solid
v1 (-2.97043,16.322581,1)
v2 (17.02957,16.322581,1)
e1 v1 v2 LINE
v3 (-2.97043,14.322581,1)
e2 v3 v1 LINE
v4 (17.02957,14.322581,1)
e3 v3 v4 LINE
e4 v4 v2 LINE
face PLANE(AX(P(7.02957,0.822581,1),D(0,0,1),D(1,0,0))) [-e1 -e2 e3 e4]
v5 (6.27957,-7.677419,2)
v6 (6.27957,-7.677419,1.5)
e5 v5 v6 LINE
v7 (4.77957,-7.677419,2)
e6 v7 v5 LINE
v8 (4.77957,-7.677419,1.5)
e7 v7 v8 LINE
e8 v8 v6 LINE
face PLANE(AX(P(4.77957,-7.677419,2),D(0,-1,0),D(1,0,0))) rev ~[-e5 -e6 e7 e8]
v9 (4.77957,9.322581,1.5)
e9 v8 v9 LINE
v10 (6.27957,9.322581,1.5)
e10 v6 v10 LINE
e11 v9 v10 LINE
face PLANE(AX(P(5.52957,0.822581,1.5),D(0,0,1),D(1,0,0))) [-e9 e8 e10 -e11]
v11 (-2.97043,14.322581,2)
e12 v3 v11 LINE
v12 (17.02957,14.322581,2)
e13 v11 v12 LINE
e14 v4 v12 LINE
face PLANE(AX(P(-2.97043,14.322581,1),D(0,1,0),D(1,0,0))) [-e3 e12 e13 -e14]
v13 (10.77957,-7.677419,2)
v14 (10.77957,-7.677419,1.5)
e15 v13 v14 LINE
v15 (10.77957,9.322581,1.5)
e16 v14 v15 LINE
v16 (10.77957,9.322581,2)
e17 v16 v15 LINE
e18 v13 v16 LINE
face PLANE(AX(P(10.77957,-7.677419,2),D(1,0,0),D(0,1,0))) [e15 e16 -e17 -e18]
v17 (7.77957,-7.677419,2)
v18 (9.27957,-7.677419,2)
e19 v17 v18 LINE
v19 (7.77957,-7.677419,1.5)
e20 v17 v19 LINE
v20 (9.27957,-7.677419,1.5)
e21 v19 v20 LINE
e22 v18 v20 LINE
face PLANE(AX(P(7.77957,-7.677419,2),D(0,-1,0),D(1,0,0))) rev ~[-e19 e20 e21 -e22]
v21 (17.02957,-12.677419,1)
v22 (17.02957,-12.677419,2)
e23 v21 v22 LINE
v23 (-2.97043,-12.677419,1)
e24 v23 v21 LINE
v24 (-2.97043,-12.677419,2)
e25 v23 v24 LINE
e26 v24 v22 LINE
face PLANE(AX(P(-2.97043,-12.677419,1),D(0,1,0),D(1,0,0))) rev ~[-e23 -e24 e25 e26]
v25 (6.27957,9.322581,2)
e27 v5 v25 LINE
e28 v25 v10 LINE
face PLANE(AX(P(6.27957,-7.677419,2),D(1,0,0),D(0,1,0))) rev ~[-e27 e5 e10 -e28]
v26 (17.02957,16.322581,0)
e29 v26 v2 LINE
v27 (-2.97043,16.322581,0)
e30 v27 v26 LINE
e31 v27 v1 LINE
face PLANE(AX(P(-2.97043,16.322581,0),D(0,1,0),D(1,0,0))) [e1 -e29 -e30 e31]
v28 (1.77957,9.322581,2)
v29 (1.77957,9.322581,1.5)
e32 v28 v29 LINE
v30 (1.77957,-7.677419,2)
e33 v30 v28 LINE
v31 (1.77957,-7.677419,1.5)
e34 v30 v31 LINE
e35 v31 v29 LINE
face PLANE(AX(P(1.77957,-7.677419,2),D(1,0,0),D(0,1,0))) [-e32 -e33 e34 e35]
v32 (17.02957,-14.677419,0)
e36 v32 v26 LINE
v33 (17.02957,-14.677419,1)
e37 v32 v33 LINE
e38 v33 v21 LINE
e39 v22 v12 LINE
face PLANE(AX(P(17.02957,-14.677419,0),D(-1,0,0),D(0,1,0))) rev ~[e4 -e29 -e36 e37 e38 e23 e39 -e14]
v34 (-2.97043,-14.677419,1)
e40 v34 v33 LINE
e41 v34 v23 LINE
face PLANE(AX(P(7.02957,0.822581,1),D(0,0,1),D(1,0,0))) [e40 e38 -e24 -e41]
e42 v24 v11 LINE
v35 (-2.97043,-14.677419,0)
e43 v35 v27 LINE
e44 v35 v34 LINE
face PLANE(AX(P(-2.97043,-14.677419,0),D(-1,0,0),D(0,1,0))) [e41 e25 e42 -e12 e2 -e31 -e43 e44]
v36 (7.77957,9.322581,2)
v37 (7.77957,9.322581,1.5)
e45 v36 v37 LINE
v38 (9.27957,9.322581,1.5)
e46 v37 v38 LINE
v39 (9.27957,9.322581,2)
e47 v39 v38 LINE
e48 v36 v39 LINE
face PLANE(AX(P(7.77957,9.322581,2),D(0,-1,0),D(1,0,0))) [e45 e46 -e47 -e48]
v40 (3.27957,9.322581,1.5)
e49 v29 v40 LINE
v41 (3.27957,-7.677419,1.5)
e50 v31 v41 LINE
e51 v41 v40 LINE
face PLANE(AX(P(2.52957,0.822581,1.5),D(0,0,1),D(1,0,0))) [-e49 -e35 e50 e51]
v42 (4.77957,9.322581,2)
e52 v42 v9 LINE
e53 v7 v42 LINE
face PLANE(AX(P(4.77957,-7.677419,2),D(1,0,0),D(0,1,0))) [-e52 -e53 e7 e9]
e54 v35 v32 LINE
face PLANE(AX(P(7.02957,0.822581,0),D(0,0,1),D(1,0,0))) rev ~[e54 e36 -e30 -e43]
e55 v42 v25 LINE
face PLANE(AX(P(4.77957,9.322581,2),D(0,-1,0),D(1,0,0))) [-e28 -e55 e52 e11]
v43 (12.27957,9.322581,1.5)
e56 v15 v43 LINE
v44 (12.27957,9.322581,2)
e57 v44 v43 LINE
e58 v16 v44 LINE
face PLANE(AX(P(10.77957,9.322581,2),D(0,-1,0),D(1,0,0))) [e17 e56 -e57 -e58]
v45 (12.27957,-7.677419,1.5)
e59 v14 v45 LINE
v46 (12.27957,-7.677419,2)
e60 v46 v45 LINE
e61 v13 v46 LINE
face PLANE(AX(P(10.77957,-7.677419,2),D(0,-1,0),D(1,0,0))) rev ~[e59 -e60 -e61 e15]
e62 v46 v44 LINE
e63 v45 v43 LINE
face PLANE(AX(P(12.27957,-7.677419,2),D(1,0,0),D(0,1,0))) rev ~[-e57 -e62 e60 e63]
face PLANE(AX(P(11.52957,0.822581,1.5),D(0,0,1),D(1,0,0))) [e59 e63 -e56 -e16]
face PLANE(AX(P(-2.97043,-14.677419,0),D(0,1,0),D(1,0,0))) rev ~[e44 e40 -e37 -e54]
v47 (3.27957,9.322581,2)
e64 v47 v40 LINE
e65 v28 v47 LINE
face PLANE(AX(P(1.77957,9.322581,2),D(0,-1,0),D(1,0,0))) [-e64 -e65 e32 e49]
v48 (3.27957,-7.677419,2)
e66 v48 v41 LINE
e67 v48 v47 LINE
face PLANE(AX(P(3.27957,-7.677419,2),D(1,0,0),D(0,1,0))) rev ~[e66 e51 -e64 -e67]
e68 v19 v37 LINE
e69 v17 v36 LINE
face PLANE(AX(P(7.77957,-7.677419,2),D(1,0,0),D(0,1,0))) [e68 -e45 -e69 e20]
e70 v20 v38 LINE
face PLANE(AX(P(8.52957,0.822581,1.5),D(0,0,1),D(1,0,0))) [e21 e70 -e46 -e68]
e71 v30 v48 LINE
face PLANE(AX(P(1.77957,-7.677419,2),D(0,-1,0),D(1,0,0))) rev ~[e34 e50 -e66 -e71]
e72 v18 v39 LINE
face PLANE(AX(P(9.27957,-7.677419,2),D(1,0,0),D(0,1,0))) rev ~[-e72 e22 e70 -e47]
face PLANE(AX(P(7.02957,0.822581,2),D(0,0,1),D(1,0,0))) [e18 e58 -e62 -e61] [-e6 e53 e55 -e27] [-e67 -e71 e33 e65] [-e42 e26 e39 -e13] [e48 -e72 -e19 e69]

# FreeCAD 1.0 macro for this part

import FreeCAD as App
import Part
import Sketcher

V = App.Vector


def add_polygon(sketch, points):
    """Adds a closed chain of lines whose ends are joined by coincident constraints."""
    first, n = sketch.GeometryCount, len(points)
    for a, b in zip(points, points[1:] + points[:1]):
        sketch.addGeometry(Part.LineSegment(App.Vector(*a, 0), App.Vector(*b, 0)), False)
    for i in range(n):
        sketch.addConstraint(Sketcher.Constraint("Coincident", first + i, 2, first + (i + 1) % n, 1))

doc = App.newDocument("Part")
body = doc.addObject("PartDesign::Body", "Body")

# Sketch on XY plane
sketch1 = doc.addObject("Sketcher::SketchObject", "Sketch")
body.addObject(sketch1)
sketch1.AttachmentSupport = (doc.XY_Plane, [""])
sketch1.MapMode = "FlatFace"
add_polygon(sketch1, [(-3, 16), (-3, -15), (17, -15), (17, 16)])  # lines 0-3
sketch1.addConstraint(Sketcher.Constraint("Vertical", 0))
sketch1.addConstraint(Sketcher.Constraint("Horizontal", 1))
sketch1.addConstraint(Sketcher.Constraint("Vertical", 2))
sketch1.addConstraint(Sketcher.Constraint("Horizontal", 3))
sketch1.addConstraint(Sketcher.Constraint("DistanceX", 1, 1, 1, 2, 20.0))
sketch1.addConstraint(Sketcher.Constraint("DistanceY", 0, 2, 0, 1, 31.0))
sketch1.addConstraint(Sketcher.Constraint("DistanceX", 0, 2, -1, 1, 2.97043))
sketch1.addConstraint(Sketcher.Constraint("DistanceY", 0, 2, -1, 1, 14.677419))
pad1 = doc.addObject("PartDesign::Pad", "Pad")
body.addObject(pad1)
pad1.Profile = sketch1
pad1.Length = 1

# Sketch on XY plane
sketch2 = doc.addObject("Sketcher::SketchObject", "Sketch001")
body.addObject(sketch2)
sketch2.AttachmentSupport = (doc.XY_Plane, [""])
sketch2.MapMode = "FlatFace"
sketch2.AttachmentOffset = App.Placement(V(0, 0, 1), App.Rotation())
add_polygon(sketch2, [(-3, 14), (-3, -13), (17, -13), (17, 14)])  # lines 0-3
sketch2.addConstraint(Sketcher.Constraint("Vertical", 0))
sketch2.addConstraint(Sketcher.Constraint("Horizontal", 1))
sketch2.addConstraint(Sketcher.Constraint("Vertical", 2))
sketch2.addConstraint(Sketcher.Constraint("Horizontal", 3))
sketch2.addConstraint(Sketcher.Constraint("DistanceX", 1, 1, 1, 2, 20.0))
sketch2.addConstraint(Sketcher.Constraint("DistanceY", 0, 2, 0, 1, 27.0))
sketch2.addConstraint(Sketcher.Constraint("DistanceX", 0, 2, -1, 1, 2.97043))
sketch2.addConstraint(Sketcher.Constraint("DistanceY", 0, 2, -1, 1, 12.677419))
pad2 = doc.addObject("PartDesign::Pad", "Pad001")
body.addObject(pad2)
pad2.Profile = sketch2
pad2.Length = 1

# Sketch on XY plane
sketch3 = doc.addObject("Sketcher::SketchObject", "Sketch002")
body.addObject(sketch3)
sketch3.AttachmentSupport = (doc.XY_Plane, [""])
sketch3.MapMode = "FlatFace"
sketch3.AttachmentOffset = App.Placement(V(0, 0, 2), App.Rotation())
add_polygon(sketch3, [(1.8, 9.3), (1.8, -7.7), (3.3, -7.7), (3.3, 9.3)])  # lines 0-3
add_polygon(sketch3, [(4.8, 9.3), (4.8, -7.7), (6.3, -7.7), (6.3, 9.3)])  # lines 4-7
add_polygon(sketch3, [(7.8, 9.3), (7.8, -7.7), (9.3, -7.7), (9.3, 9.3)])  # lines 8-11
add_polygon(sketch3, [(10.8, 9.3), (10.8, -7.7), (12.3, -7.7), (12.3, 9.3)])  # lines 12-15
sketch3.addConstraint(Sketcher.Constraint("Vertical", 0))
sketch3.addConstraint(Sketcher.Constraint("Horizontal", 1))
sketch3.addConstraint(Sketcher.Constraint("Vertical", 2))
sketch3.addConstraint(Sketcher.Constraint("Horizontal", 3))
sketch3.addConstraint(Sketcher.Constraint("Vertical", 4))
sketch3.addConstraint(Sketcher.Constraint("Horizontal", 5))
sketch3.addConstraint(Sketcher.Constraint("Vertical", 6))
sketch3.addConstraint(Sketcher.Constraint("Horizontal", 7))
sketch3.addConstraint(Sketcher.Constraint("Vertical", 8))
sketch3.addConstraint(Sketcher.Constraint("Horizontal", 9))
sketch3.addConstraint(Sketcher.Constraint("Vertical", 10))
sketch3.addConstraint(Sketcher.Constraint("Horizontal", 11))
sketch3.addConstraint(Sketcher.Constraint("Vertical", 12))
sketch3.addConstraint(Sketcher.Constraint("Horizontal", 13))
sketch3.addConstraint(Sketcher.Constraint("Vertical", 14))
sketch3.addConstraint(Sketcher.Constraint("Horizontal", 15))
sketch3.addConstraint(Sketcher.Constraint("Horizontal", 1, 2, 4, 2))
sketch3.addConstraint(Sketcher.Constraint("Horizontal", 3, 2, 6, 2))
sketch3.addConstraint(Sketcher.Constraint("Horizontal", 5, 2, 8, 2))
sketch3.addConstraint(Sketcher.Constraint("Horizontal", 7, 2, 10, 2))
sketch3.addConstraint(Sketcher.Constraint("Horizontal", 9, 2, 12, 2))
sketch3.addConstraint(Sketcher.Constraint("Horizontal", 11, 2, 14, 2))
sketch3.addConstraint(Sketcher.Constraint("Equal", 3, 5))
sketch3.addConstraint(Sketcher.Constraint("Equal", 7, 9))
sketch3.addConstraint(Sketcher.Constraint("Equal", 11, 13))
sketch3.addConstraint(Sketcher.Constraint("DistanceY", 0, 2, 0, 1, 17.0))
sketch3.addConstraint(Sketcher.Constraint("DistanceX", 1, 1, 1, 2, 1.5))
sketch3.addConstraint(Sketcher.Constraint("DistanceX", 0, 2, 4, 2, 3.0))
sketch3.addConstraint(Sketcher.Constraint("DistanceX", 4, 2, 8, 2, 3.0))
sketch3.addConstraint(Sketcher.Constraint("DistanceX", 8, 2, 12, 2, 3.0))
sketch3.addConstraint(Sketcher.Constraint("DistanceX", -1, 1, 0, 2, 1.77957))
sketch3.addConstraint(Sketcher.Constraint("DistanceY", 0, 2, -1, 1, 7.677419))
pocket1 = doc.addObject("PartDesign::Pocket", "Pocket")
body.addObject(pocket1)
pocket1.Profile = sketch3
pocket1.Length = 0.5

doc.recompute()
